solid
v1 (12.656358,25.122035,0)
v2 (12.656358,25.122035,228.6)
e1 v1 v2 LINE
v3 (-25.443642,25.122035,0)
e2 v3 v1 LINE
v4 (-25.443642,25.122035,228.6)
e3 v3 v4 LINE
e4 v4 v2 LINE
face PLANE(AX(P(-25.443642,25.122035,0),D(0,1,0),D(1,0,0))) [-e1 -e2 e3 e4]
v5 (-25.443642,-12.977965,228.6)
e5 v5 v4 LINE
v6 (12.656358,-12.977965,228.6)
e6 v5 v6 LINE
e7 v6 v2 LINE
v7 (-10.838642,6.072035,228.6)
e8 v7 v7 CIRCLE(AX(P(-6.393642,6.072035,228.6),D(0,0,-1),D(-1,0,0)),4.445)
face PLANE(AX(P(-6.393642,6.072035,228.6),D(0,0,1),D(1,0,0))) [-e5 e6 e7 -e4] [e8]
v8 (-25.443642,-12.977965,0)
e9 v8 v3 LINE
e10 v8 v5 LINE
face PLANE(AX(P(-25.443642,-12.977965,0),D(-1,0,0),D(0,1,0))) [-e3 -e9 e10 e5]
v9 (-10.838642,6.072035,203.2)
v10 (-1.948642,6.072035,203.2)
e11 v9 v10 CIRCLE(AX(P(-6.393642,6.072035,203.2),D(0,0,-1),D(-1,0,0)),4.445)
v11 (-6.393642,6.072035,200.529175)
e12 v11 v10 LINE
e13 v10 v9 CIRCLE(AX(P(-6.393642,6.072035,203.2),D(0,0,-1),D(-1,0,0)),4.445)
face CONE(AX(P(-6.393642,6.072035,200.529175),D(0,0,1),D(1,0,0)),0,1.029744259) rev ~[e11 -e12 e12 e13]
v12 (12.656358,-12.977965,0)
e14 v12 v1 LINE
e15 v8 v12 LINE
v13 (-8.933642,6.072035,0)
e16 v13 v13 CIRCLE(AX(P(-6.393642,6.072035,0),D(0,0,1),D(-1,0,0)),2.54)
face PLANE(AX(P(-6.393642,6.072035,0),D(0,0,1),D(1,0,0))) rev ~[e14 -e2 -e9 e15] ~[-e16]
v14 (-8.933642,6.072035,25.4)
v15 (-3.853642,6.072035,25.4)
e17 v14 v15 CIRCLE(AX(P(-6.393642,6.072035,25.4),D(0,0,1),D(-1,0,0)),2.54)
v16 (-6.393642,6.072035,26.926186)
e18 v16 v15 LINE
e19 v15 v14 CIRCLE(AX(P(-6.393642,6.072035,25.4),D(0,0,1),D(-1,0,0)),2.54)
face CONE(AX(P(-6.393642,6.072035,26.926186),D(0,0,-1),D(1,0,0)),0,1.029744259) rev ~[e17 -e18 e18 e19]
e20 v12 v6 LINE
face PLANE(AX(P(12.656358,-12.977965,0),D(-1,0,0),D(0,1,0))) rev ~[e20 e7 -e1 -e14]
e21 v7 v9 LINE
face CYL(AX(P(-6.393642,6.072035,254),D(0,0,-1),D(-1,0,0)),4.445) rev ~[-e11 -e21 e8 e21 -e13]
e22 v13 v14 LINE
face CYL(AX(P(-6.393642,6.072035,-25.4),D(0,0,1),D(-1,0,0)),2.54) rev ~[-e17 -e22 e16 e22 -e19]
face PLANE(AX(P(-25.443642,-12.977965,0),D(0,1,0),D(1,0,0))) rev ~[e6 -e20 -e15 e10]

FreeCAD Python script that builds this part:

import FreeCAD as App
import Part
import Sketcher

V = App.Vector
Q = App.Units.Quantity

doc = App.newDocument("Part")
params = doc.addObject("Spreadsheet::Sheet", "Params")
for row, (alias, value) in enumerate([
    ("sketch1_width", "1.5 in"),
    ("pad1_length", "9 in"),
    ("sketch2_diameter", "0.2 in"),
    ("hole_diameter", "0.2 in"),
    ("hole_depth", "1 in"),
    ("sketch3_diameter", "0.35 in"),
    ("hole2_diameter", "0.35 in"),
    ("hole2_depth", "1 in"),
], start=1):
    params.set(f"A{row}", alias)
    params.set(f"B{row}", "=" + value)
    params.setAlias(f"B{row}", alias)

body = doc.addObject("PartDesign::Body", "Body")

# Sketch on XY plane
sketch1 = body.newObject("Sketcher::SketchObject", "Sketch")
sketch1.AttachmentSupport = (doc.getObject("XY_Plane"), [""])
sketch1.MapMode = "FlatFace"
sketch1.addGeometry([
    Part.LineSegment(V(-25, 25, 0), V(-25, -13, 0)),
    Part.LineSegment(V(-25, -13, 0), V(13, -13, 0)),
    Part.LineSegment(V(13, -13, 0), V(13, 25, 0)),
    Part.LineSegment(V(13, 25, 0), V(-25, 25, 0)),
], False)
sketch1.addConstraint([
    Sketcher.Constraint("Coincident", 0, 2, 1, 1),
    Sketcher.Constraint("Coincident", 1, 2, 2, 1),
    Sketcher.Constraint("Coincident", 2, 2, 3, 1),
    Sketcher.Constraint("Coincident", 3, 2, 0, 1),
    Sketcher.Constraint("Vertical", 0),
    Sketcher.Constraint("Horizontal", 1),
    Sketcher.Constraint("Vertical", 2),
    Sketcher.Constraint("Horizontal", 3),
    Sketcher.Constraint("Equal", 3, 0),
    Sketcher.Constraint("DistanceX", 1, 1, 1, 2, Q("1.5 in")),
    Sketcher.Constraint("DistanceX", 0, 2, -1, 1, Q("25.443642 mm")),
    Sketcher.Constraint("DistanceY", 0, 2, -1, 1, Q("12.977965 mm")),
])
sketch1.setExpression("Constraints[9]", "Params.sketch1_width")
pad1 = body.newObject("PartDesign::Pad", "Pad")
pad1.Profile = sketch1
pad1.setExpression("Length", "Params.pad1_length")

# Sketch on XY plane
sketch2 = body.newObject("Sketcher::SketchObject", "Sketch001")
sketch2.AttachmentSupport = (doc.getObject("XY_Plane"), [""])
sketch2.MapMode = "FlatFace"
sketch2.addGeometry(Part.Circle(V(-6.4, 6.1, 0), V(0, 0, 1), 2.5), False)
sketch2.addConstraint([
    Sketcher.Constraint("Diameter", 0, Q("0.2 in")),
    Sketcher.Constraint("DistanceX", 0, 3, -1, 1, Q("6.393642 mm")),
    Sketcher.Constraint("DistanceY", -1, 1, 0, 3, Q("6.072035 mm")),
])
sketch2.setExpression("Constraints[0]", "Params.sketch2_diameter")
doc.recompute()
hole = body.newObject("PartDesign::Hole", "Hole")
hole.Profile = sketch2
hole.ThreadType = "None"
hole.setExpression("Diameter", "Params.hole_diameter")
hole.DepthType = "Dimension"
hole.setExpression("Depth", "Params.hole_depth")
hole.DrillPoint = "Angled"
hole.DrillPointAngle = 118
hole.Reversed = True

# Sketch on XY plane
sketch3 = body.newObject("Sketcher::SketchObject", "Sketch002")
sketch3.AttachmentSupport = (doc.getObject("XY_Plane"), [""])
sketch3.MapMode = "FlatFace"
sketch3.AttachmentOffset = App.Placement(V(0, 0, 9 * 25.4), App.Rotation())
sketch3.addGeometry(Part.Circle(V(-6.4, 6.1, 0), V(0, 0, 1), 4.4), False)
sketch3.addConstraint([
    Sketcher.Constraint("Diameter", 0, Q("0.35 in")),
    Sketcher.Constraint("DistanceX", 0, 3, -1, 1, Q("6.393642 mm")),
    Sketcher.Constraint("DistanceY", -1, 1, 0, 3, Q("6.072035 mm")),
])
sketch3.setExpression("Constraints[0]", "Params.sketch3_diameter")
doc.recompute()
hole2 = body.newObject("PartDesign::Hole", "Hole001")
hole2.Profile = sketch3
hole2.ThreadType = "None"
hole2.setExpression("Diameter", "Params.hole2_diameter")
hole2.DepthType = "Dimension"
hole2.setExpression("Depth", "Params.hole2_depth")
hole2.DrillPoint = "Angled"
hole2.DrillPointAngle = 118

doc.recompute()
